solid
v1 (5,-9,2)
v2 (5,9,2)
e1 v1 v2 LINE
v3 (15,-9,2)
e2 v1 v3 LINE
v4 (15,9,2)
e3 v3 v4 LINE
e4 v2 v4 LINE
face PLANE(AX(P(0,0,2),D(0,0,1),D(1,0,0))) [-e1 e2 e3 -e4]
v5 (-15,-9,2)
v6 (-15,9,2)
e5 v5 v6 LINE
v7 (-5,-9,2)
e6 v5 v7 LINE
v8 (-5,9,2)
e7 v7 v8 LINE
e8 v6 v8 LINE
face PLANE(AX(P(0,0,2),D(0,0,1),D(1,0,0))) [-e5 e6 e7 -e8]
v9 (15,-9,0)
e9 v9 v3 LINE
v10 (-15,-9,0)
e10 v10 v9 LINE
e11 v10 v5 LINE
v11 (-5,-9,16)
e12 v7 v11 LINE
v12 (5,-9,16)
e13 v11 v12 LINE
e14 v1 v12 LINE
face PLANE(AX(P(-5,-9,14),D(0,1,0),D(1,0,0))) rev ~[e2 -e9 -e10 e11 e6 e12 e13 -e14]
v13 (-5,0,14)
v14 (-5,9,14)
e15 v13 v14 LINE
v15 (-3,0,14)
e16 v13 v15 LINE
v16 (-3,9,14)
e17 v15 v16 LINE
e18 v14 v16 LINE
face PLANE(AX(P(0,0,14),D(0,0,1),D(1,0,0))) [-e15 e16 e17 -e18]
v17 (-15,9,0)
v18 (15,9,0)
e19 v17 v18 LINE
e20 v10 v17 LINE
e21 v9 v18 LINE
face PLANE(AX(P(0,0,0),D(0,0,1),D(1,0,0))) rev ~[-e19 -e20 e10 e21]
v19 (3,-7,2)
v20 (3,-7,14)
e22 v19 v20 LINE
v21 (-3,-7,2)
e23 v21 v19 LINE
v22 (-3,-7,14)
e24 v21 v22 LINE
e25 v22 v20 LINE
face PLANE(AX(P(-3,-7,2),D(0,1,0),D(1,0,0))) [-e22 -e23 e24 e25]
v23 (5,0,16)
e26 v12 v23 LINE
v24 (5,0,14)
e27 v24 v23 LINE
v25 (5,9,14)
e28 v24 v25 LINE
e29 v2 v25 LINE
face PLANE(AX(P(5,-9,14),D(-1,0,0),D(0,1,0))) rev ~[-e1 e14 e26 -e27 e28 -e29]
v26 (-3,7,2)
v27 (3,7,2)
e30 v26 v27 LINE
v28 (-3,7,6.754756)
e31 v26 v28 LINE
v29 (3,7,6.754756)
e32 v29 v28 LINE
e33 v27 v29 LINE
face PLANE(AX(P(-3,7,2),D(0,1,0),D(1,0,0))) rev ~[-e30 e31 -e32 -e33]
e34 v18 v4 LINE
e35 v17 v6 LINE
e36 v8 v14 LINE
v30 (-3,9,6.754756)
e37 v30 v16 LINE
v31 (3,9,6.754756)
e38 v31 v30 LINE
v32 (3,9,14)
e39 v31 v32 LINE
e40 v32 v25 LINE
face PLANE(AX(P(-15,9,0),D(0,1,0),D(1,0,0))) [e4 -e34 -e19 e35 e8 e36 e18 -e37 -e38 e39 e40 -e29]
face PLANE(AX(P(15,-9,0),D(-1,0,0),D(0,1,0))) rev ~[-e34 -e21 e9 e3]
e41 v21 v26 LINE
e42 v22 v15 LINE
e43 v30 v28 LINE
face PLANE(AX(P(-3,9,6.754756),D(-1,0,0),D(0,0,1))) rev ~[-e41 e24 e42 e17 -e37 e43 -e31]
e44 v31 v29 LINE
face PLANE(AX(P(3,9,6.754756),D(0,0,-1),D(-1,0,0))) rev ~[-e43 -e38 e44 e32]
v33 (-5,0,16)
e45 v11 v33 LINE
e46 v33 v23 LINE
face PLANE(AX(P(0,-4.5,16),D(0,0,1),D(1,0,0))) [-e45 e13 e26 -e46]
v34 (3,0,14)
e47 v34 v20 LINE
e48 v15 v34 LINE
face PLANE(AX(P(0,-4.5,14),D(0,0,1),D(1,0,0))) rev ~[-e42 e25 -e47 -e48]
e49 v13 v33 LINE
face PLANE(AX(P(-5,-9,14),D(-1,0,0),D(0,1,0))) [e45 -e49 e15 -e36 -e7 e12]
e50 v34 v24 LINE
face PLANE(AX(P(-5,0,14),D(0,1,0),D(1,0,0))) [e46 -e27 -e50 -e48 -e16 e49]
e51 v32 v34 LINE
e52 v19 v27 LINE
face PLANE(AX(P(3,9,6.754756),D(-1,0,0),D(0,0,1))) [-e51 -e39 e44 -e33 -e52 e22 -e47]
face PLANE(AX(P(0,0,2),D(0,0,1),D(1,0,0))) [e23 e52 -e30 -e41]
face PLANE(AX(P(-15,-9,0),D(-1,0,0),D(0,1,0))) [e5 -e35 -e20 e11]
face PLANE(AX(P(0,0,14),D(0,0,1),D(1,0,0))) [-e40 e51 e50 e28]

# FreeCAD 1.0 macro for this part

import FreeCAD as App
import Part
import Sketcher
from FreeCAD import Vector

doc = App.newDocument("Part")
body = doc.addObject("PartDesign::Body", "Body")

# Sketch on XY plane
sketch1 = body.newObject("Sketcher::SketchObject", "Sketch")
sketch1.AttachmentSupport = (doc.getObject("XY_Plane"), [""])
sketch1.MapMode = "FlatFace"
sketch1.addGeometry([
    Part.LineSegment(Vector(-15, 9, 0), Vector(-15, -9, 0)),
    Part.LineSegment(Vector(-15, -9, 0), Vector(15, -9, 0)),
    Part.LineSegment(Vector(15, -9, 0), Vector(15, 9, 0)),
    Part.LineSegment(Vector(15, 9, 0), Vector(-15, 9, 0)),
], False)
sketch1.addConstraint([
    Sketcher.Constraint("Coincident", 0, 2, 1, 1),
    Sketcher.Constraint("Coincident", 1, 2, 2, 1),
    Sketcher.Constraint("Coincident", 2, 2, 3, 1),
    Sketcher.Constraint("Coincident", 3, 2, 0, 1),
    Sketcher.Constraint("Vertical", 0),
    Sketcher.Constraint("Horizontal", 1),
    Sketcher.Constraint("Vertical", 2),
    Sketcher.Constraint("Horizontal", 3),
    Sketcher.Constraint("Symmetric", 0, 2, 2, 2, -1, 1),
    Sketcher.Constraint("DistanceX", 1, 1, 1, 2, 30.0),
    Sketcher.Constraint("DistanceY", 0, 2, 0, 1, 18.0),
])
pad1 = body.newObject("PartDesign::Pad", "Pad")
pad1.Profile = sketch1
pad1.Length = 2

# Sketch on XY plane
sketch2 = body.newObject("Sketcher::SketchObject", "Sketch001")
sketch2.AttachmentSupport = (doc.getObject("XY_Plane"), [""])
sketch2.MapMode = "FlatFace"
sketch2.AttachmentOffset = App.Placement(Vector(0, 0, 2), App.Rotation())
sketch2.addGeometry([
    Part.LineSegment(Vector(-5, 9, 0), Vector(-5, -9, 0)),  # 0
    Part.LineSegment(Vector(-5, -9, 0), Vector(5, -9, 0)),  # 1
    Part.LineSegment(Vector(5, -9, 0), Vector(5, 9, 0)),  # 2
    Part.LineSegment(Vector(5, 9, 0), Vector(-5, 9, 0)),  # 3
    Part.LineSegment(Vector(3, -7, 0), Vector(-3, -7, 0)),  # 4
    Part.LineSegment(Vector(-3, -7, 0), Vector(-3, 7, 0)),  # 5
    Part.LineSegment(Vector(-3, 7, 0), Vector(3, 7, 0)),  # 6
    Part.LineSegment(Vector(3, 7, 0), Vector(3, -7, 0)),  # 7
], False)
sketch2.addConstraint([
    Sketcher.Constraint("Coincident", 0, 2, 1, 1),
    Sketcher.Constraint("Coincident", 1, 2, 2, 1),
    Sketcher.Constraint("Coincident", 2, 2, 3, 1),
    Sketcher.Constraint("Coincident", 3, 2, 0, 1),
    Sketcher.Constraint("Coincident", 4, 2, 5, 1),
    Sketcher.Constraint("Coincident", 5, 2, 6, 1),
    Sketcher.Constraint("Coincident", 6, 2, 7, 1),
    Sketcher.Constraint("Coincident", 7, 2, 4, 1),
    Sketcher.Constraint("Vertical", 0),
    Sketcher.Constraint("Horizontal", 1),
    Sketcher.Constraint("Vertical", 2),
    Sketcher.Constraint("Horizontal", 3),
    Sketcher.Constraint("Horizontal", 4),
    Sketcher.Constraint("Vertical", 5),
    Sketcher.Constraint("Horizontal", 6),
    Sketcher.Constraint("Vertical", 7),
    Sketcher.Constraint("Symmetric", 0, 2, 2, 2, -1, 1),
    Sketcher.Constraint("Symmetric", 4, 2, 6, 2, -1, 1),
    Sketcher.Constraint("DistanceX", 1, 1, 1, 2, 10.0),
    Sketcher.Constraint("DistanceX", 4, 2, 4, 1, 6.0),
    Sketcher.Constraint("DistanceY", 0, 2, 0, 1, 18.0),
    Sketcher.Constraint("DistanceY", 5, 1, 5, 2, 14.0),
])
pad2 = body.newObject("PartDesign::Pad", "Pad001")
pad2.Profile = sketch2
pad2.Length = 12

# Sketch on XZ plane
sketch3 = body.newObject("Sketcher::SketchObject", "Sketch002")
sketch3.AttachmentSupport = (doc.getObject("XZ_Plane"), [""])
sketch3.MapMode = "FlatFace"
sketch3.AttachmentOffset = App.Placement(Vector(0, 0, -9), App.Rotation())
sketch3.addGeometry([
    Part.LineSegment(Vector(3, 14, 0), Vector(3, 7, 0)),
    Part.LineSegment(Vector(3, 7, 0), Vector(-3, 7, 0)),
    Part.LineSegment(Vector(-3, 7, 0), Vector(-3, 14, 0)),
    Part.LineSegment(Vector(-3, 14, 0), Vector(3, 14, 0)),
], False)
sketch3.addConstraint([
    Sketcher.Constraint("Coincident", 0, 2, 1, 1),
    Sketcher.Constraint("Coincident", 1, 2, 2, 1),
    Sketcher.Constraint("Coincident", 2, 2, 3, 1),
    Sketcher.Constraint("Coincident", 3, 2, 0, 1),
    Sketcher.Constraint("Vertical", 0),
    Sketcher.Constraint("Horizontal", 1),
    Sketcher.Constraint("Vertical", 2),
    Sketcher.Constraint("Horizontal", 3),
    Sketcher.Constraint("DistanceX", 1, 2, 1, 1, 6.0),
    Sketcher.Constraint("DistanceX", -1, 1, 0, 2, 3.0),
    Sketcher.Constraint("DistanceY", -1, 1, 2, 2, 14.0),
    Sketcher.Constraint("DistanceY", 0, 2, 0, 1, 7.245244),
])
pocket1 = body.newObject("PartDesign::Pocket", "Pocket")
pocket1.Profile = sketch3
pocket1.Length = 4
pocket1.Reversed = True

# Sketch on XY plane
sketch4 = body.newObject("Sketcher::SketchObject", "Sketch003")
sketch4.AttachmentSupport = (doc.getObject("XY_Plane"), [""])
sketch4.MapMode = "FlatFace"
sketch4.AttachmentOffset = App.Placement(Vector(0, 0, 14), App.Rotation())
sketch4.addGeometry([
    Part.LineSegment(Vector(-5, 0, 0), Vector(-5, -9, 0)),
    Part.LineSegment(Vector(-5, -9, 0), Vector(5, -9, 0)),
    Part.LineSegment(Vector(5, -9, 0), Vector(5, 0, 0)),
    Part.LineSegment(Vector(5, 0, 0), Vector(-5, 0, 0)),
], False)
sketch4.addConstraint([
    Sketcher.Constraint("Coincident", 0, 2, 1, 1),
    Sketcher.Constraint("Coincident", 1, 2, 2, 1),
    Sketcher.Constraint("Coincident", 2, 2, 3, 1),
    Sketcher.Constraint("Coincident", 3, 2, 0, 1),
    Sketcher.Constraint("Vertical", 0),
    Sketcher.Constraint("Horizontal", 1),
    Sketcher.Constraint("Vertical", 2),
    Sketcher.Constraint("Horizontal", 3),
    Sketcher.Constraint("Symmetric", 2, 2, 3, 2, -1, 1),
    Sketcher.Constraint("DistanceX", 1, 1, 1, 2, 10.0),
    Sketcher.Constraint("DistanceY", 0, 2, 0, 1, 9.0),
])
pad3 = body.newObject("PartDesign::Pad", "Pad002")
pad3.Profile = sketch4
pad3.Length = 2

doc.recompute()
